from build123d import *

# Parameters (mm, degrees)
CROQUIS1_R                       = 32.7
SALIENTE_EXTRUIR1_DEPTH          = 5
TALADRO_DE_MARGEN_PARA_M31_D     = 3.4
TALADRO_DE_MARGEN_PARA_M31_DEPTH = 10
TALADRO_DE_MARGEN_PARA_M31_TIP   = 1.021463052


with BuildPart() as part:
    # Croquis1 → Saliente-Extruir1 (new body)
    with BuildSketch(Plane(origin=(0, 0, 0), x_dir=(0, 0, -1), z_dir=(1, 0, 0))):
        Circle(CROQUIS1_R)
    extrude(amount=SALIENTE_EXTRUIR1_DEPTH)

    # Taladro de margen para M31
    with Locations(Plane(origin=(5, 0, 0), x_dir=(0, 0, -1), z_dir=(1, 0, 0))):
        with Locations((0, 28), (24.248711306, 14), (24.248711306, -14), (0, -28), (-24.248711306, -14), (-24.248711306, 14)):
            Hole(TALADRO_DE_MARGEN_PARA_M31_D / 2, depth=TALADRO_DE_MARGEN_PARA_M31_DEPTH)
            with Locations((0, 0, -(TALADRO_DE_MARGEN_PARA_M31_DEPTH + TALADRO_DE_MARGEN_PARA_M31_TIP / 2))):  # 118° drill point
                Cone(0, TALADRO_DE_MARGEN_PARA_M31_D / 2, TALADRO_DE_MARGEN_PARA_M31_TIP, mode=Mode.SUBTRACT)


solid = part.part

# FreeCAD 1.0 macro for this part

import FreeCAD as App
import Part
import Sketcher
Q = App.Units.Quantity

doc = App.newDocument("Part")
params = doc.addObject("Spreadsheet::Sheet", "Params")
for row, (alias, value) in enumerate([
    ("sketch1_diameter", "65.4 mm"),
    ("pad1_length", "5 mm"),
    ("sketch2_diameter", "3.4 mm"),
    ("hole_diameter", "3.4 mm"),
    ("hole_depth", "10 mm"),
], start=1):
    params.set(f"A{row}", alias)
    params.set(f"B{row}", "=" + value)
    params.setAlias(f"B{row}", alias)

body = doc.addObject("PartDesign::Body", "Body")

# Sketch on YZ plane
sketch1 = doc.addObject("Sketcher::SketchObject", "Sketch")
body.addObject(sketch1)
sketch1.AttachmentSupport = (doc.YZ_Plane, [""])
sketch1.MapMode = "FlatFace"
sketch1.addGeometry(Part.Circle(App.Vector(0, 0, 0), App.Vector(0, 0, 1), 32.7), False)
sketch1.addConstraint(Sketcher.Constraint("Coincident", 0, 3, -1, 1))
sketch1.addConstraint(Sketcher.Constraint("Diameter", 0, Q("65.4 mm")))
sketch1.setExpression("Constraints[1]", "Params.sketch1_diameter")
pad1 = doc.addObject("PartDesign::Pad", "Pad")
body.addObject(pad1)
pad1.Profile = sketch1
pad1.setExpression("Length", "Params.pad1_length")

# Sketch on YZ plane
sketch2 = doc.addObject("Sketcher::SketchObject", "Sketch001")
body.addObject(sketch2)
sketch2.AttachmentSupport = (doc.YZ_Plane, [""])
sketch2.MapMode = "FlatFace"
sketch2.AttachmentOffset = App.Placement(App.Vector(0, 0, 5), App.Rotation())
sketch2.addGeometry(Part.Circle(App.Vector(28, 0, 0), App.Vector(0, 0, 1), 1.7), False)
sketch2.addGeometry(Part.Circle(App.Vector(14, -24.248711, 0), App.Vector(0, 0, 1), 1.7), False)
sketch2.addGeometry(Part.Circle(App.Vector(-14, -24.248711, 0), App.Vector(0, 0, 1), 1.7), False)
sketch2.addGeometry(Part.Circle(App.Vector(-28, 0, 0), App.Vector(0, 0, 1), 1.7), False)
sketch2.addGeometry(Part.Circle(App.Vector(-14, 24.248711, 0), App.Vector(0, 0, 1), 1.7), False)
sketch2.addGeometry(Part.Circle(App.Vector(14, 24.248711, 0), App.Vector(0, 0, 1), 1.7), False)
sketch2.addConstraint(Sketcher.Constraint("Equal", 0, 1))
sketch2.addConstraint(Sketcher.Constraint("Equal", 1, 2))
sketch2.addConstraint(Sketcher.Constraint("Equal", 2, 3))
sketch2.addConstraint(Sketcher.Constraint("Equal", 3, 4))
sketch2.addConstraint(Sketcher.Constraint("Equal", 4, 5))
sketch2.addConstraint(Sketcher.Constraint("Symmetric", 0, 3, 3, 3, -1, 1))
sketch2.addConstraint(Sketcher.Constraint("Symmetric", 1, 3, 4, 3, -1, 1))
sketch2.addConstraint(Sketcher.Constraint("Symmetric", 2, 3, 5, 3, -1, 1))
sketch2.addConstraint(Sketcher.Constraint("Symmetric", 1, 3, 2, 3, -2))
sketch2.addConstraint(Sketcher.Constraint("PointOnObject", 0, 3, -1))
sketch2.addConstraint(Sketcher.Constraint("Diameter", 0, Q("3.4 mm")))
sketch2.addConstraint(Sketcher.Constraint("DistanceX", -1, 1, 0, 3, Q("28 mm")))
sketch2.addConstraint(Sketcher.Constraint("DistanceX", -1, 1, 1, 3, Q("14 mm")))
sketch2.addConstraint(Sketcher.Constraint("DistanceY", 1, 3, -1, 1, Q("24.248711 mm")))
sketch2.setExpression("Constraints[10]", "Params.sketch2_diameter")
doc.recompute()
hole = doc.addObject("PartDesign::Hole", "Hole")
body.addObject(hole)
hole.Profile = sketch2
hole.ThreadType = "None"
hole.setExpression("Diameter", "Params.hole_diameter")
hole.DepthType = "Dimension"
hole.setExpression("Depth", "Params.hole_depth")
hole.DrillPoint = "Angled"
hole.DrillPointAngle = 118

doc.recompute()
